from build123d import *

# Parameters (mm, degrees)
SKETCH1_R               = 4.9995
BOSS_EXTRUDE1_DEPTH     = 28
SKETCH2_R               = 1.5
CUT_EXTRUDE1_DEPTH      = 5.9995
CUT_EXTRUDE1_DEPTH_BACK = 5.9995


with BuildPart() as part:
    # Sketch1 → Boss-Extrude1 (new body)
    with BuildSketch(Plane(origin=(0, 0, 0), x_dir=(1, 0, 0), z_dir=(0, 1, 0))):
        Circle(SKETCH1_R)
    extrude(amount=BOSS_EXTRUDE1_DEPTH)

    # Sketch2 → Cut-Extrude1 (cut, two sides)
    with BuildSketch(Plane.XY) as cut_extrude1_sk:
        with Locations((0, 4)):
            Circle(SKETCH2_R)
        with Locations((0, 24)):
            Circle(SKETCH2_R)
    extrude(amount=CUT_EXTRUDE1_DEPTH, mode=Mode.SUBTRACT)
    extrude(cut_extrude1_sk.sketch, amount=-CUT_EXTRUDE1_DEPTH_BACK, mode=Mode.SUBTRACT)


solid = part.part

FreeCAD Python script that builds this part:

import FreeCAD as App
import Part
import Sketcher
Q = App.Units.Quantity

doc = App.newDocument("Part")
body = doc.addObject("PartDesign::Body", "Body")

# Sketch on XZ plane
sketch1 = doc.addObject("Sketcher::SketchObject", "Sketch")
body.addObject(sketch1)
sketch1.AttachmentSupport = (doc.XZ_Plane, [""])
sketch1.MapMode = "FlatFace"
sketch1.addGeometry(Part.Circle(App.Vector(0, 0, 0), App.Vector(0, 0, 1), 5), False)
sketch1.addConstraint(Sketcher.Constraint("Coincident", 0, 3, -1, 1))
sketch1.addConstraint(Sketcher.Constraint("Diameter", 0, Q("9.999 mm")))
pad1 = doc.addObject("PartDesign::Pad", "Pad")
body.addObject(pad1)
pad1.Profile = sketch1
pad1.Length = 28
pad1.Reversed = True

# Sketch on XY plane
sketch2 = doc.addObject("Sketcher::SketchObject", "Sketch001")
body.addObject(sketch2)
sketch2.AttachmentSupport = (doc.XY_Plane, [""])
sketch2.MapMode = "FlatFace"
sketch2.addGeometry(Part.Circle(App.Vector(0, 4, 0), App.Vector(0, 0, 1), 1.5), False)
sketch2.addGeometry(Part.Circle(App.Vector(0, 24, 0), App.Vector(0, 0, 1), 1.5), False)
sketch2.addConstraint(Sketcher.Constraint("Equal", 0, 1))
sketch2.addConstraint(Sketcher.Constraint("PointOnObject", 0, 3, -2))
sketch2.addConstraint(Sketcher.Constraint("PointOnObject", 1, 3, -2))
sketch2.addConstraint(Sketcher.Constraint("Diameter", 0, Q("3 mm")))
sketch2.addConstraint(Sketcher.Constraint("DistanceY", -1, 1, 0, 3, Q("4 mm")))
sketch2.addConstraint(Sketcher.Constraint("DistanceY", -1, 1, 1, 3, Q("24 mm")))
pocket1 = doc.addObject("PartDesign::Pocket", "Pocket")
body.addObject(pocket1)
pocket1.Profile = sketch2
pocket1.Type = "ThroughAll"
pocket1.Midplane = True

doc.recompute()
